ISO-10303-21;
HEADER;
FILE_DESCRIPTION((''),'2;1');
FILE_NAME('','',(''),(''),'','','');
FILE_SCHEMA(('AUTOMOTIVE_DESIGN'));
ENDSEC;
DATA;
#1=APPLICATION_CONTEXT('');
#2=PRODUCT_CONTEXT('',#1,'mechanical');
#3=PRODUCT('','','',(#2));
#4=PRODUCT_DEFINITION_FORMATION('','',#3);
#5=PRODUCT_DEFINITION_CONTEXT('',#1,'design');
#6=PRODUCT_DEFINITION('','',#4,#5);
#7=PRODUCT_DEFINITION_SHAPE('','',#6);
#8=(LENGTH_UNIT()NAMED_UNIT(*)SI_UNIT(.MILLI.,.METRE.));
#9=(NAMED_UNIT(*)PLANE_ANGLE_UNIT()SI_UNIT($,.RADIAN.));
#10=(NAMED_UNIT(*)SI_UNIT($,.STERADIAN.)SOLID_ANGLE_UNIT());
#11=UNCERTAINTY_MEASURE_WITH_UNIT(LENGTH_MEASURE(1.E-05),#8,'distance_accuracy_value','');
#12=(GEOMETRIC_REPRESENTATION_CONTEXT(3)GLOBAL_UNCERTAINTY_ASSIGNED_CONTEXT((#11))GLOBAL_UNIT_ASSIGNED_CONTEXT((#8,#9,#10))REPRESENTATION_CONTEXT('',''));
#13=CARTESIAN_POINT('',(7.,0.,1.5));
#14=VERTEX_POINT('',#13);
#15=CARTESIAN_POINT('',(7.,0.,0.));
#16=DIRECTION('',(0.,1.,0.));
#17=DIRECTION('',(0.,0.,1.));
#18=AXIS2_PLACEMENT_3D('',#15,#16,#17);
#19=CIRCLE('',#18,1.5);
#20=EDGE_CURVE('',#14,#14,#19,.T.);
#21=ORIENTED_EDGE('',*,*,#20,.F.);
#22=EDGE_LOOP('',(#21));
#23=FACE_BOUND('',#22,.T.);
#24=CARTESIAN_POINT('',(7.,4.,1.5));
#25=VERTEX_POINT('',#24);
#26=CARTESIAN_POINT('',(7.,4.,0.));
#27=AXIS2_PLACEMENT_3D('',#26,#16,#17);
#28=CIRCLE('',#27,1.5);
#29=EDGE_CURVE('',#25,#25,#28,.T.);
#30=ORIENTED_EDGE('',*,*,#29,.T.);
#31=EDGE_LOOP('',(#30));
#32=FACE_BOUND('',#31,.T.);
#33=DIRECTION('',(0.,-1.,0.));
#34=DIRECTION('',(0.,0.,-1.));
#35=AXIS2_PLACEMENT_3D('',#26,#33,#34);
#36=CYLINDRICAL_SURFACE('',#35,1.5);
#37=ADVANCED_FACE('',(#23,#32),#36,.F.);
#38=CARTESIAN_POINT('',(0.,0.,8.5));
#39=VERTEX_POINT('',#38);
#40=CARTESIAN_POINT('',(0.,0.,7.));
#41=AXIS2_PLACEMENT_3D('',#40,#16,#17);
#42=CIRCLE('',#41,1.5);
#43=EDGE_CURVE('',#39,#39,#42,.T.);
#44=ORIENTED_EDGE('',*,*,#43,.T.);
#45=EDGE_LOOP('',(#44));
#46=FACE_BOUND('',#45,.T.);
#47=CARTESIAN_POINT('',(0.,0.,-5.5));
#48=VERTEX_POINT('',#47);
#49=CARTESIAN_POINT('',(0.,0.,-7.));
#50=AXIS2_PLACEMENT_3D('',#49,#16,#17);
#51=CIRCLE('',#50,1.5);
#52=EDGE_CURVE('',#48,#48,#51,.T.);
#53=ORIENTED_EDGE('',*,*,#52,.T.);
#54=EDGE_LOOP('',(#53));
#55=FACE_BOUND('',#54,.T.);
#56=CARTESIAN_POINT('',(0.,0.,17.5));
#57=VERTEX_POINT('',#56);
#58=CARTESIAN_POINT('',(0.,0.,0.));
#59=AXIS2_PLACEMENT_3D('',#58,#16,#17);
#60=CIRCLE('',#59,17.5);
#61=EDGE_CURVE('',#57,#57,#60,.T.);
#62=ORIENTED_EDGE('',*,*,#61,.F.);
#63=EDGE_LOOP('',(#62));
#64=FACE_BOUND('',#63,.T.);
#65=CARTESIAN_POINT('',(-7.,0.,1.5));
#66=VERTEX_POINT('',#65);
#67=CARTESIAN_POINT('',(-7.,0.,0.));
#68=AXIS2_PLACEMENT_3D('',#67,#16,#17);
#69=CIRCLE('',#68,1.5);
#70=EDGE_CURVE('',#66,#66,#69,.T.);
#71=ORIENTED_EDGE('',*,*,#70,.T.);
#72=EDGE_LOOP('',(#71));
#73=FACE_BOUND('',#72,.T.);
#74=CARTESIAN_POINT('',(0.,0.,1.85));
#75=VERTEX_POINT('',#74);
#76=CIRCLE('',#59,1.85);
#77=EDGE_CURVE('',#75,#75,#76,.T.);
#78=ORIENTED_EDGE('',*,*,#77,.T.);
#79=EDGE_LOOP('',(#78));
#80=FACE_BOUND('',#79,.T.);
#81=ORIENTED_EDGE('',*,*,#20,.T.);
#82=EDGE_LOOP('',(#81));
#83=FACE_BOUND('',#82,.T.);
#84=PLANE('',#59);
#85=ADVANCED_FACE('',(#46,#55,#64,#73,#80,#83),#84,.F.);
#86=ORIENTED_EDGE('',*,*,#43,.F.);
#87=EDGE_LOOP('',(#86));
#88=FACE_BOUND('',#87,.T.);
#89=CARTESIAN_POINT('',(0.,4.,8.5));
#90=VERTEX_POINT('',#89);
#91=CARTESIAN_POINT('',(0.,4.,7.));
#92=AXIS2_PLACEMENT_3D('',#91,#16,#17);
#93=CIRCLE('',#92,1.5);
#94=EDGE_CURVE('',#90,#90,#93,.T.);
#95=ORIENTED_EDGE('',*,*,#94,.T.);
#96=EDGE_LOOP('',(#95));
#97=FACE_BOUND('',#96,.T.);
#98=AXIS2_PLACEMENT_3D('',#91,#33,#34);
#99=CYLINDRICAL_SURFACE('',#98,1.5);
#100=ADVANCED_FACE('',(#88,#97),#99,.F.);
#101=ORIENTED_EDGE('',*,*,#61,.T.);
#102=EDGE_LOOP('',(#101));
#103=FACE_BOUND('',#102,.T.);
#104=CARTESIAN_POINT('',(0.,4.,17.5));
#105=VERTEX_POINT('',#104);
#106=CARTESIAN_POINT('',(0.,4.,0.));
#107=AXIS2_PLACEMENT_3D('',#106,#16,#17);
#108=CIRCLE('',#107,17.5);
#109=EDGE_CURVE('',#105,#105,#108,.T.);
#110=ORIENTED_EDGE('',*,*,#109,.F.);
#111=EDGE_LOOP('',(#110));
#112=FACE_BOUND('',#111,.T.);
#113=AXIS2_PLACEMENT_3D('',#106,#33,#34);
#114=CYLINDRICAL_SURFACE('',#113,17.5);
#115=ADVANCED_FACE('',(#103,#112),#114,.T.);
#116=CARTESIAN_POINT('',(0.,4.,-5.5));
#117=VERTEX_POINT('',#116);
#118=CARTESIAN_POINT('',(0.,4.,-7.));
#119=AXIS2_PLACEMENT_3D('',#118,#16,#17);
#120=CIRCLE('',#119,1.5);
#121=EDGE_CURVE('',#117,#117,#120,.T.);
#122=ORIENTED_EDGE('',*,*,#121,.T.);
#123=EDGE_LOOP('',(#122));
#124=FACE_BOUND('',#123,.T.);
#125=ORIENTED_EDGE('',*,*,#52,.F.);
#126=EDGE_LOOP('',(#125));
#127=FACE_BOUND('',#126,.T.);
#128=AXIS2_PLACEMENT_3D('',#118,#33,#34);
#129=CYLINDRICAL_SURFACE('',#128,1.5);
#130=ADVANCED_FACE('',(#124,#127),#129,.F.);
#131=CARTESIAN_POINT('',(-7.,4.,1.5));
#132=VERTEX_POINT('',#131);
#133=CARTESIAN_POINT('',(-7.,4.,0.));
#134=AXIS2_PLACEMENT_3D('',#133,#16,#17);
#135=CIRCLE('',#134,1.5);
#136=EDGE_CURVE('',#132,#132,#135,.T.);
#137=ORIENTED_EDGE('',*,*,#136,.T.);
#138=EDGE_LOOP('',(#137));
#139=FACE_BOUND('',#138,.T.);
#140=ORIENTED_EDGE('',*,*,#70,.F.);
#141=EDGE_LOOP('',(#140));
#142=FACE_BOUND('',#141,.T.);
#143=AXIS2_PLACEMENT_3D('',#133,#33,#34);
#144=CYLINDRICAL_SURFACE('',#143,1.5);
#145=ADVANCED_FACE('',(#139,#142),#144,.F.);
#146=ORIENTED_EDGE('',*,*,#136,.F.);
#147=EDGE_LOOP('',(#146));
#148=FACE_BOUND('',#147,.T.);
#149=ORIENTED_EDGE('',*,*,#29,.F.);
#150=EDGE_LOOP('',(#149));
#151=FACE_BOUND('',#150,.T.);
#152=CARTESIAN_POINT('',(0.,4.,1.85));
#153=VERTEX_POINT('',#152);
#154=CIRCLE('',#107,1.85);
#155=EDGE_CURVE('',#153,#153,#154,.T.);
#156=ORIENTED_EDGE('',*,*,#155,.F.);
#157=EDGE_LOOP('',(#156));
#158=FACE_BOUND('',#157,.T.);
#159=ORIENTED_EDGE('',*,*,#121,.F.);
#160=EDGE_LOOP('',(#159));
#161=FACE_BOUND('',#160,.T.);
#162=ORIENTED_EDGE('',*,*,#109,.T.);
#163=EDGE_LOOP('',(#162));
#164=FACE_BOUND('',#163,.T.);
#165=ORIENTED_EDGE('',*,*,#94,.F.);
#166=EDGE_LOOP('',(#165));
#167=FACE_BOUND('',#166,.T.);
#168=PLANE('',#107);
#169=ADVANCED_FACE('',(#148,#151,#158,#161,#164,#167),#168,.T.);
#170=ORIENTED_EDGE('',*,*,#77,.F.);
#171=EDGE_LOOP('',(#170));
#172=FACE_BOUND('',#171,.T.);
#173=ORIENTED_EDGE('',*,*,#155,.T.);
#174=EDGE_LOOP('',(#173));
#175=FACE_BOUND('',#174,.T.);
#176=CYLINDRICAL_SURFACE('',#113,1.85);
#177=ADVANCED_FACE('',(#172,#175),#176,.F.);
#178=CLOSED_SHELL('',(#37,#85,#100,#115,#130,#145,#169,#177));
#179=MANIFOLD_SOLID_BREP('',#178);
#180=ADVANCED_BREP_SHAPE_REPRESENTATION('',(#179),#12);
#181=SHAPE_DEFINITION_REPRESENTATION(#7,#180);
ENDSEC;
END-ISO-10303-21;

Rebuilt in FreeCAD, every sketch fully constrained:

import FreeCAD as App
import Part
import Sketcher
from FreeCAD import Vector
Q = App.Units.Quantity

doc = App.newDocument("Part")
body = doc.addObject("PartDesign::Body", "Body")

sketch1 = body.newObject("Sketcher::SketchObject", "Sketch")
sketch1.AttachmentSupport = (doc.getObject("XZ_Plane"), [""])
sketch1.MapMode = "FlatFace"
sketch1.addGeometry(Part.Circle(Vector(0, 0, 0), Vector(0, 0, 1), 17.5), False)
sketch1.addGeometry(Part.Circle(Vector(0, -7, 0), Vector(0, 0, 1), 1.5), False)
sketch1.addGeometry(Part.Circle(Vector(-7, 0, 0), Vector(0, 0, 1), 1.5), False)
sketch1.addGeometry(Part.Circle(Vector(0, 0, 0), Vector(0, 0, 1), 1.9), False)
sketch1.addGeometry(Part.Circle(Vector(0, 7, 0), Vector(0, 0, 1), 1.5), False)
sketch1.addGeometry(Part.Circle(Vector(7, 0, 0), Vector(0, 0, 1), 1.5), False)
sketch1.addConstraint(Sketcher.Constraint("Coincident", 0, 3, -1, 1))
sketch1.addConstraint(Sketcher.Constraint("Coincident", 3, 3, -1, 1))
sketch1.addConstraint(Sketcher.Constraint("Equal", 1, 2))
sketch1.addConstraint(Sketcher.Constraint("Equal", 2, 4))
sketch1.addConstraint(Sketcher.Constraint("Equal", 4, 5))
sketch1.addConstraint(Sketcher.Constraint("Symmetric", 1, 3, 4, 3, -1, 1))
sketch1.addConstraint(Sketcher.Constraint("Symmetric", 2, 3, 5, 3, -1, 1))
sketch1.addConstraint(Sketcher.Constraint("PointOnObject", 1, 3, -2))
sketch1.addConstraint(Sketcher.Constraint("PointOnObject", 2, 3, -1))
sketch1.addConstraint(Sketcher.Constraint("Diameter", 0, Q("35 mm")))
sketch1.addConstraint(Sketcher.Constraint("Diameter", 1, Q("3 mm")))
sketch1.addConstraint(Sketcher.Constraint("Diameter", 3, Q("3.7 mm")))
sketch1.addConstraint(Sketcher.Constraint("DistanceY", 1, 3, -1, 1, Q("7 mm")))
sketch1.addConstraint(Sketcher.Constraint("DistanceX", 2, 3, -1, 1, Q("7 mm")))
pad1 = body.newObject("PartDesign::Pad", "Pad")
pad1.Profile = sketch1
pad1.Length = 4
pad1.Reversed = True

doc.recompute()
